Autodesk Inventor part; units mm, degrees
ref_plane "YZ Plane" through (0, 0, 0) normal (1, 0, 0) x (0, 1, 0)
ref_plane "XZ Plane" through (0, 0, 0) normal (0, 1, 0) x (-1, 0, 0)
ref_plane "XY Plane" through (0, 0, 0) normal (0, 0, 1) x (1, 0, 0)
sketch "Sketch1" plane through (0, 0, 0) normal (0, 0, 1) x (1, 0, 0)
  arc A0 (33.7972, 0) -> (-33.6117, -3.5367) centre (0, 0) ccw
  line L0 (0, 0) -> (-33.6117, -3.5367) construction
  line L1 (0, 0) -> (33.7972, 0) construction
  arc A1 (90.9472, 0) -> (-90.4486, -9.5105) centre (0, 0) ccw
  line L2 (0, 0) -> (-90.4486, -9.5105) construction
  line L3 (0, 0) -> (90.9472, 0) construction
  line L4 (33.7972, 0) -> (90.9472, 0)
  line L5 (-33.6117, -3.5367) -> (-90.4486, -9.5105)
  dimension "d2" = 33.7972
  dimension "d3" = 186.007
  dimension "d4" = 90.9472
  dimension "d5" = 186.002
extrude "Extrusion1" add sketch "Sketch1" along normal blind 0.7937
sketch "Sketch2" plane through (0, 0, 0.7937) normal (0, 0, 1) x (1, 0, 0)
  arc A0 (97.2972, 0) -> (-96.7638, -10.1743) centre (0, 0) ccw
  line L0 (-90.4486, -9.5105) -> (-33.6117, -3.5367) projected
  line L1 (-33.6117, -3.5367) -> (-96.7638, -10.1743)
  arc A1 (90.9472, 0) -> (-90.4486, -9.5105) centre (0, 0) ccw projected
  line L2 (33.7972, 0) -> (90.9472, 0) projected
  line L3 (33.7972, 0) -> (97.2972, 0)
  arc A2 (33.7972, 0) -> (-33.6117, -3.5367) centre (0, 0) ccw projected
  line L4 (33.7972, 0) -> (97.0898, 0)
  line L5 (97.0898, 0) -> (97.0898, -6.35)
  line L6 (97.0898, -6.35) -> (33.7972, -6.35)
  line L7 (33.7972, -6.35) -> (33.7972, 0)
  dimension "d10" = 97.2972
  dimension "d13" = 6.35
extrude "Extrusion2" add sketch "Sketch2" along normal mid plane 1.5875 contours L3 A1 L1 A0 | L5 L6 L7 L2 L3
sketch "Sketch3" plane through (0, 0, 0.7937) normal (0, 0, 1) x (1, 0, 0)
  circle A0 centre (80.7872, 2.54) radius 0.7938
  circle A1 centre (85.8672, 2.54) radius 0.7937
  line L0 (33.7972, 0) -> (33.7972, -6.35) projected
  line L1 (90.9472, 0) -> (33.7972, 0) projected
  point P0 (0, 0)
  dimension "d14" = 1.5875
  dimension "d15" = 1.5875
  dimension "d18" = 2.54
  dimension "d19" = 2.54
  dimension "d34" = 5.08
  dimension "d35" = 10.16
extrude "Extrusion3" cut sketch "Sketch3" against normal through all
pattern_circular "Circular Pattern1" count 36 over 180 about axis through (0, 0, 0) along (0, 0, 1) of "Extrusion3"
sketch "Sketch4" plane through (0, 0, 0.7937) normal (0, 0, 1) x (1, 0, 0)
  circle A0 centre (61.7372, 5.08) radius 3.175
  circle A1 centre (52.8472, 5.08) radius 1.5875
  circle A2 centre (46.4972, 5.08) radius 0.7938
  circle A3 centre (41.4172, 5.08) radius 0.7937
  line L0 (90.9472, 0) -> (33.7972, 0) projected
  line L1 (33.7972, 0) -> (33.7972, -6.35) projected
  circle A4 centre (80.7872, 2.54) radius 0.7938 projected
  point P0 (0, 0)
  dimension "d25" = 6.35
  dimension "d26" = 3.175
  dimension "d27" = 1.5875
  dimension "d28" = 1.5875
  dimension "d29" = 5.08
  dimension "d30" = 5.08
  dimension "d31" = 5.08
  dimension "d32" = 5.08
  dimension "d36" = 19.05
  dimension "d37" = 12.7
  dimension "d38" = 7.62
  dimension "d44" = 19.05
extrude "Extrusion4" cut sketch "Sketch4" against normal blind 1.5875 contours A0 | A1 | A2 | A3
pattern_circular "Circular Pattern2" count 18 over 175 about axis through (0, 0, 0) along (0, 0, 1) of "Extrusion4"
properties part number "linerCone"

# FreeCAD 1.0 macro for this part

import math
import FreeCAD as App
import Part
import Sketcher
Q = App.Units.Quantity

doc = App.newDocument("Part")
params = doc.addObject("Spreadsheet::Sheet", "Params")
for row, (alias, value) in enumerate([
    ("pad1_length", "0.031248 in"),
    ("sketch2_height", "0.25 in"),
    ("sketch2_length", "0.25 in"),
    ("sketch2_width", "2.25 in"),
    ("pad2_length", "0.0625 in"),
    ("sketch3_diameter", "0.0625 in"),
    ("sketch4_diameter", "0.25 in"),
    ("sketch4_diameter2", "0.125 in"),
    ("sketch4_diameter3", "0.0625 in"),
    ("pocket2_length", "0.0625 in"),
], start=1):
    params.set(f"A{row}", alias)
    params.set(f"B{row}", "=" + value)
    params.setAlias(f"B{row}", alias)

body = doc.addObject("PartDesign::Body", "Body")

# Sketch on XY plane
sketch1 = body.newObject("Sketcher::SketchObject", "Sketch")
sketch1.AttachmentSupport = (doc.getObject("XY_Plane"), [""])
sketch1.MapMode = "FlatFace"
sketch1.addGeometry(Part.ArcOfCircle(Part.Circle(App.Vector(0, 0, 0), App.Vector(0, 0, 1), 34), math.radians(0), math.radians(186)), False)
sketch1.addGeometry(Part.LineSegment(App.Vector(34, 0, 0), App.Vector(91, 0, 0)), False)
sketch1.addGeometry(Part.ArcOfCircle(Part.Circle(App.Vector(0, 0, 0), App.Vector(0, 0, 1), 91), math.radians(0), math.radians(186)), False)
sketch1.addGeometry(Part.LineSegment(App.Vector(-90, -10, 0), App.Vector(-34, -4, 0)), False)
sketch1.addConstraint(Sketcher.Constraint("Coincident", 0, 1, 1, 1))
sketch1.addConstraint(Sketcher.Constraint("Coincident", 1, 2, 2, 1))
sketch1.addConstraint(Sketcher.Constraint("Coincident", 2, 2, 3, 1))
sketch1.addConstraint(Sketcher.Constraint("Coincident", 3, 2, 0, 2))
sketch1.addConstraint(Sketcher.Constraint("Horizontal", 1))
sketch1.addConstraint(Sketcher.Constraint("Coincident", 0, 3, -1, 1))
sketch1.addConstraint(Sketcher.Constraint("Coincident", 2, 3, -1, 1))
sketch1.addConstraint(Sketcher.Constraint("PointOnObject", 0, 1, -1))
sketch1.addConstraint(Sketcher.Constraint("Radius", 0, Q("1.3306 in")))
sketch1.addConstraint(Sketcher.Constraint("Radius", 2, Q("3.5806 in")))
sketch1.addConstraint(Sketcher.Constraint("Angle", 3, Q("6 deg")))
sketch1.addConstraint(Sketcher.Constraint("DistanceX", 3, 2, -1, 1, Q("1.3233 in")))
pad1 = body.newObject("PartDesign::Pad", "Pad")
pad1.Profile = sketch1
pad1.setExpression("Length", "Params.pad1_length")

# Sketch on XY plane
sketch2 = body.newObject("Sketcher::SketchObject", "Sketch001")
sketch2.AttachmentSupport = (doc.getObject("XY_Plane"), [""])
sketch2.MapMode = "FlatFace"
sketch2.AttachmentOffset = App.Placement(App.Vector(0, 0, 0.031248 * 25.4), App.Rotation())
sketch2.addGeometry(Part.LineSegment(App.Vector(97.09, 0, 0), App.Vector(97.3, 0, 0)), False)
sketch2.addGeometry(Part.ArcOfCircle(Part.Circle(App.Vector(0, 0, 0), App.Vector(0, 0, 1), 97.3), math.radians(0), math.radians(186)), False)
sketch2.addGeometry(Part.LineSegment(App.Vector(-96.76, -10.17, 0), App.Vector(-90.45, -9.51, 0)), False)
sketch2.addGeometry(Part.ArcOfCircle(Part.Circle(App.Vector(0, 0, 0), App.Vector(0, 0, 1), 90.95), math.radians(0), math.radians(186)), False)
sketch2.addGeometry(Part.LineSegment(App.Vector(90.95, 0, 0), App.Vector(33.8, 0, 0)), False)
sketch2.addGeometry(Part.LineSegment(App.Vector(33.8, 0, 0), App.Vector(33.8, -6.35, 0)), False)
sketch2.addGeometry(Part.LineSegment(App.Vector(33.8, -6.35, 0), App.Vector(97.09, -6.35, 0)), False)
sketch2.addGeometry(Part.LineSegment(App.Vector(97.09, -6.35, 0), App.Vector(97.09, 0, 0)), False)
sketch2.addConstraint(Sketcher.Constraint("Coincident", 0, 2, 1, 1))
sketch2.addConstraint(Sketcher.Constraint("Coincident", 1, 2, 2, 1))
sketch2.addConstraint(Sketcher.Constraint("Coincident", 2, 2, 3, 2))
sketch2.addConstraint(Sketcher.Constraint("Coincident", 3, 1, 4, 1))
sketch2.addConstraint(Sketcher.Constraint("Coincident", 4, 2, 5, 1))
sketch2.addConstraint(Sketcher.Constraint("Coincident", 5, 2, 6, 1))
sketch2.addConstraint(Sketcher.Constraint("Coincident", 6, 2, 7, 1))
sketch2.addConstraint(Sketcher.Constraint("Coincident", 7, 2, 0, 1))
sketch2.addConstraint(Sketcher.Constraint("Horizontal", 0))
sketch2.addConstraint(Sketcher.Constraint("Horizontal", 4))
sketch2.addConstraint(Sketcher.Constraint("Vertical", 5))
sketch2.addConstraint(Sketcher.Constraint("Horizontal", 6))
sketch2.addConstraint(Sketcher.Constraint("Vertical", 7))
sketch2.addConstraint(Sketcher.Constraint("Coincident", 1, 3, -1, 1))
sketch2.addConstraint(Sketcher.Constraint("Coincident", 3, 3, -1, 1))
sketch2.addConstraint(Sketcher.Constraint("PointOnObject", 0, 2, -1))
sketch2.addConstraint(Sketcher.Constraint("PointOnObject", 3, 1, -1))
sketch2.addConstraint(Sketcher.Constraint("DistanceY", 5, 2, 5, 1, Q("0.25 in")))
sketch2.addConstraint(Sketcher.Constraint("Radius", 1, Q("3.8306 in")))
sketch2.addConstraint(Sketcher.Constraint("Distance", 2, Q("0.25 in")))
sketch2.addConstraint(Sketcher.Constraint("Angle", 2, Q("6 deg")))
sketch2.addConstraint(Sketcher.Constraint("DistanceX", 4, 2, 4, 1, Q("2.25 in")))
sketch2.addConstraint(Sketcher.Constraint("DistanceX", 0, 1, 0, 2, 0.2074))
sketch2.addConstraint(Sketcher.Constraint("DistanceX", 1, 2, -1, 1, Q("3.8096 in")))
sketch2.setExpression("Constraints[17]", "Params.sketch2_height")
sketch2.setExpression("Constraints[19]", "Params.sketch2_length")
sketch2.setExpression("Constraints[21]", "Params.sketch2_width")
pad2 = body.newObject("PartDesign::Pad", "Pad001")
pad2.Profile = sketch2
pad2.setExpression("Length", "Params.pad2_length")
pad2.Midplane = True

# Sketch on XY plane
sketch3 = body.newObject("Sketcher::SketchObject", "Sketch002")
sketch3.AttachmentSupport = (doc.getObject("XY_Plane"), [""])
sketch3.MapMode = "FlatFace"
sketch3.AttachmentOffset = App.Placement(App.Vector(0, 0, 0.031248 * 25.4), App.Rotation())
sketch3.addGeometry(Part.Circle(App.Vector(80.8, 2.5, 0), App.Vector(0, 0, 1), 0.8), False)
sketch3.addGeometry(Part.Circle(App.Vector(85.9, 2.5, 0), App.Vector(0, 0, 1), 0.8), False)
sketch3.addConstraint(Sketcher.Constraint("Equal", 0, 1))
sketch3.addConstraint(Sketcher.Constraint("Horizontal", 0, 3, 1, 3))
sketch3.addConstraint(Sketcher.Constraint("Diameter", 0, Q("0.0625 in")))
sketch3.addConstraint(Sketcher.Constraint("DistanceY", -1, 1, 0, 3, Q("0.1 in")))
sketch3.addConstraint(Sketcher.Constraint("DistanceX", 0, 3, 1, 3, Q("0.2 in")))
sketch3.addConstraint(Sketcher.Constraint("DistanceX", -1, 1, 0, 3, Q("3.1806 in")))
sketch3.setExpression("Constraints[2]", "Params.sketch3_diameter")
pocket1 = body.newObject("PartDesign::Pocket", "Pocket")
pocket1.Profile = sketch3
pocket1.Type = "ThroughAll"
doc.recompute()

polarpattern = body.newObject("PartDesign::PolarPattern", "PolarPattern")
polarpattern.Originals = [pocket1]
polarpattern.Axis = (doc.getObject("Z_Axis"), [""])
polarpattern.Angle = 180
polarpattern.Occurrences = 36
body.Tip = polarpattern

# Sketch on XY plane
sketch4 = body.newObject("Sketcher::SketchObject", "Sketch003")
sketch4.AttachmentSupport = (doc.getObject("XY_Plane"), [""])
sketch4.MapMode = "FlatFace"
sketch4.AttachmentOffset = App.Placement(App.Vector(0, 0, 0.031248 * 25.4), App.Rotation())
sketch4.addGeometry(Part.Circle(App.Vector(61.7, 5.1, 0), App.Vector(0, 0, 1), 3.2), False)
sketch4.addGeometry(Part.Circle(App.Vector(52.8, 5.1, 0), App.Vector(0, 0, 1), 1.6), False)
sketch4.addGeometry(Part.Circle(App.Vector(46.5, 5.1, 0), App.Vector(0, 0, 1), 0.8), False)
sketch4.addGeometry(Part.Circle(App.Vector(41.4, 5.1, 0), App.Vector(0, 0, 1), 0.8), False)
sketch4.addConstraint(Sketcher.Constraint("Equal", 2, 3))
sketch4.addConstraint(Sketcher.Constraint("Horizontal", 0, 3, 1, 3))
sketch4.addConstraint(Sketcher.Constraint("Horizontal", 1, 3, 2, 3))
sketch4.addConstraint(Sketcher.Constraint("Horizontal", 2, 3, 3, 3))
sketch4.addConstraint(Sketcher.Constraint("Diameter", 0, Q("0.25 in")))
sketch4.addConstraint(Sketcher.Constraint("Diameter", 1, Q("0.125 in")))
sketch4.addConstraint(Sketcher.Constraint("Diameter", 2, Q("0.0625 in")))
sketch4.addConstraint(Sketcher.Constraint("DistanceY", -1, 1, 0, 3, Q("0.2 in")))
sketch4.addConstraint(Sketcher.Constraint("DistanceX", 3, 3, 2, 3, Q("0.2 in")))
sketch4.addConstraint(Sketcher.Constraint("DistanceX", 2, 3, 1, 3, Q("0.25 in")))
sketch4.addConstraint(Sketcher.Constraint("DistanceX", 2, 3, 0, 3, Q("0.6 in")))
sketch4.addConstraint(Sketcher.Constraint("DistanceX", -1, 1, 0, 3, Q("2.4306 in")))
sketch4.setExpression("Constraints[4]", "Params.sketch4_diameter")
sketch4.setExpression("Constraints[5]", "Params.sketch4_diameter2")
sketch4.setExpression("Constraints[6]", "Params.sketch4_diameter3")
pocket2 = body.newObject("PartDesign::Pocket", "Pocket001")
pocket2.Profile = sketch4
pocket2.setExpression("Length", "Params.pocket2_length")
doc.recompute()

polarpattern2 = body.newObject("PartDesign::PolarPattern", "PolarPattern001")
polarpattern2.Originals = [pocket2]
polarpattern2.Axis = (doc.getObject("Z_Axis"), [""])
polarpattern2.Angle = 175
polarpattern2.Occurrences = 18
body.Tip = polarpattern2

doc.recompute()
